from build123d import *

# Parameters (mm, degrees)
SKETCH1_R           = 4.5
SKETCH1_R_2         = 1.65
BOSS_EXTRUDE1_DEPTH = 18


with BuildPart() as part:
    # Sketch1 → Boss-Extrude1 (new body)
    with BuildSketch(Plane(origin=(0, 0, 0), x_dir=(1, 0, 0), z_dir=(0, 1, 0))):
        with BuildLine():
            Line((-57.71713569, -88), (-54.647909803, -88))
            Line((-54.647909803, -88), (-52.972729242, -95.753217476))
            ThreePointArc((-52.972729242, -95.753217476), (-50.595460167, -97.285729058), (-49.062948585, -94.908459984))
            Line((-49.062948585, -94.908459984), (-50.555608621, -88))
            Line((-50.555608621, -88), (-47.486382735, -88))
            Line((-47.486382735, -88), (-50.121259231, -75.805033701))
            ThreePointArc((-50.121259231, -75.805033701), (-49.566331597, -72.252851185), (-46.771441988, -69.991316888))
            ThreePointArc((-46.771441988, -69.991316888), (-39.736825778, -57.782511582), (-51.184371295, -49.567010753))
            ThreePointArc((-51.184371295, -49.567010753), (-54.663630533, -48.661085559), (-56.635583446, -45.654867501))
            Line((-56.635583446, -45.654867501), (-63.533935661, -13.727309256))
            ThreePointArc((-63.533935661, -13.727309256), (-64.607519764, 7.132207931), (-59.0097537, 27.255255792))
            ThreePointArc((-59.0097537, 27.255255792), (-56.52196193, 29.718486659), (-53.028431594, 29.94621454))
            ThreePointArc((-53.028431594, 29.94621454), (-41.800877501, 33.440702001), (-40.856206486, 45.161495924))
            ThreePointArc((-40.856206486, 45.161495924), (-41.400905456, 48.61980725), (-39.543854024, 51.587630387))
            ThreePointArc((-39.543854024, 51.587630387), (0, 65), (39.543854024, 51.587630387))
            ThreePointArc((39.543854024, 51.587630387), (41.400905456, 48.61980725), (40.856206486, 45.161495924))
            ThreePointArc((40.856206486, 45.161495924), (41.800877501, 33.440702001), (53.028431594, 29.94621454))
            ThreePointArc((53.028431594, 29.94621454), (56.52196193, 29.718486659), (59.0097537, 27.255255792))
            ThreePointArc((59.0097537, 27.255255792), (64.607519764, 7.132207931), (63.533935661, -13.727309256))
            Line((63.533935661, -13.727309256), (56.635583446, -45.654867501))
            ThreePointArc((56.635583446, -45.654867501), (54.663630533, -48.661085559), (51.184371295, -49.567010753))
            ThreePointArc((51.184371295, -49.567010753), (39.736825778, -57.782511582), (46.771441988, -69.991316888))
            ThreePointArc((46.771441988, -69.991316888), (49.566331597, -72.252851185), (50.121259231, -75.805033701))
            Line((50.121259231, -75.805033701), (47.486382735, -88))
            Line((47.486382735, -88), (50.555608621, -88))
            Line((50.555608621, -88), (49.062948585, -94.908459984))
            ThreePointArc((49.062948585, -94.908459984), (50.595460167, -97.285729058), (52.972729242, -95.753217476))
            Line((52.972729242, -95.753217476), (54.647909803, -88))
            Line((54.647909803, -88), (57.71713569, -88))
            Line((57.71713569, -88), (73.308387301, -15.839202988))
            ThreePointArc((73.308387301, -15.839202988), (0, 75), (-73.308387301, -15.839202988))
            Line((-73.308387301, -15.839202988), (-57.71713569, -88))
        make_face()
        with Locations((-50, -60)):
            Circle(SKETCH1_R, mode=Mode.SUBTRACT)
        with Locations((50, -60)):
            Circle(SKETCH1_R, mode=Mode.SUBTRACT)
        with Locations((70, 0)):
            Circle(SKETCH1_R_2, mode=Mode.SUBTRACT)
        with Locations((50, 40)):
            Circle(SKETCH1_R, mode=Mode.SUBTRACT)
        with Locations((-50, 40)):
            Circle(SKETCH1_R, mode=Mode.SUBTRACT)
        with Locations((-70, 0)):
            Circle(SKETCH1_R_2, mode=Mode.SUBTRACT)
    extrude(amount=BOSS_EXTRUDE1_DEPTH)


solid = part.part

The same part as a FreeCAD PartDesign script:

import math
import FreeCAD as App
import Part
import Sketcher
from FreeCAD import Vector

doc = App.newDocument("Part")
body = doc.addObject("PartDesign::Body", "Body")

sketch1 = body.newObject("Sketcher::SketchObject", "Sketch")
sketch1.AttachmentSupport = (doc.getObject("XZ_Plane"), [""])
sketch1.MapMode = "FlatFace"
sketch1.addGeometry(Part.LineSegment(Vector(-57.717136, 88, 0), Vector(-54.64791, 88, 0)), False)
sketch1.addGeometry(Part.LineSegment(Vector(-54.64791, 88, 0), Vector(-52.972729, 95.753217, 0)), False)
sketch1.addGeometry(Part.ArcOfCircle(Part.Circle(Vector(-51.017839, 95.330839, 0), Vector(0, 0, 1), 2), math.radians(-12.192062), math.radians(167.807938)), False)
sketch1.addGeometry(Part.LineSegment(Vector(-49.062949, 94.90846, 0), Vector(-50.555609, 88, 0)), False)
sketch1.addGeometry(Part.LineSegment(Vector(-50.555609, 88, 0), Vector(-47.486383, 88, 0)), False)
sketch1.addGeometry(Part.LineSegment(Vector(-47.486383, 88, 0), Vector(-50.121259, 75.805034, 0)), False)
sketch1.addGeometry(Part.ArcOfCircle(Part.Circle(Vector(-45.234033, 74.749087, 0), Vector(0, 0, 1), 5), math.radians(167.807938), math.radians(252.092468)), False)
sketch1.addGeometry(Part.ArcOfCircle(Part.Circle(Vector(-50, 60, 0), Vector(0, 0, 1), 10.5), math.radians(-96.476591), math.radians(72.092468)), False)
sketch1.addGeometry(Part.ArcOfCircle(Part.Circle(Vector(-51.748358, 44.598921, 0), Vector(0, 0, 1), 5), math.radians(83.523409), math.radians(167.807938)), False)
sketch1.addGeometry(Part.LineSegment(Vector(-56.635583, 45.654868, 0), Vector(-63.533936, 13.727309, 0)), False)
sketch1.addGeometry(Part.ArcOfCircle(Part.Circle(Vector(0, 0, 0), Vector(0, 0, 1), 65), math.radians(167.807938), math.radians(204.791135)), False)
sketch1.addGeometry(Part.ArcOfCircle(Part.Circle(Vector(-54.470542, -25.158698, 0), Vector(0, 0, 1), 5), math.radians(-155.208865), math.radians(-73.23649)), False)
sketch1.addGeometry(Part.ArcOfCircle(Part.Circle(Vector(-50, -40, 0), Vector(0, 0, 1), 10.5), math.radians(-29.443894), math.radians(106.76351)), False)
sketch1.addGeometry(Part.ArcOfCircle(Part.Circle(Vector(-36.502019, -47.619351, 0), Vector(0, 0, 1), 5), math.radians(150.556106), math.radians(232.528481)), False)
sketch1.addGeometry(Part.ArcOfCircle(Part.Circle(Vector(0, 0, 0), Vector(0, 0, 1), 65), math.radians(-127.471519), math.radians(-52.528481)), False)
sketch1.addGeometry(Part.ArcOfCircle(Part.Circle(Vector(36.502019, -47.619351, 0), Vector(0, 0, 1), 5), math.radians(-52.528481), math.radians(29.443894)), False)
sketch1.addGeometry(Part.ArcOfCircle(Part.Circle(Vector(50, -40, 0), Vector(0, 0, 1), 10.5), math.radians(73.23649), math.radians(209.443894)), False)
sketch1.addGeometry(Part.ArcOfCircle(Part.Circle(Vector(54.470542, -25.158698, 0), Vector(0, 0, 1), 5), math.radians(-106.76351), math.radians(-24.791135)), False)
sketch1.addGeometry(Part.ArcOfCircle(Part.Circle(Vector(0, 0, 0), Vector(0, 0, 1), 65), math.radians(-24.791135), math.radians(12.192062)), False)
sketch1.addGeometry(Part.LineSegment(Vector(63.533936, 13.727309, 0), Vector(56.635583, 45.654868, 0)), False)
sketch1.addGeometry(Part.ArcOfCircle(Part.Circle(Vector(51.748358, 44.598921, 0), Vector(0, 0, 1), 5), math.radians(12.192062), math.radians(96.476591)), False)
sketch1.addGeometry(Part.ArcOfCircle(Part.Circle(Vector(50, 60, 0), Vector(0, 0, 1), 10.5), math.radians(107.907532), math.radians(276.476591)), False)
sketch1.addGeometry(Part.ArcOfCircle(Part.Circle(Vector(45.234033, 74.749087, 0), Vector(0, 0, 1), 5), math.radians(-72.092468), math.radians(12.192062)), False)
sketch1.addGeometry(Part.LineSegment(Vector(50.121259, 75.805034, 0), Vector(47.486383, 88, 0)), False)
sketch1.addGeometry(Part.LineSegment(Vector(47.486383, 88, 0), Vector(50.555609, 88, 0)), False)
sketch1.addGeometry(Part.LineSegment(Vector(50.555609, 88, 0), Vector(49.062949, 94.90846, 0)), False)
sketch1.addGeometry(Part.ArcOfCircle(Part.Circle(Vector(51.017839, 95.330839, 0), Vector(0, 0, 1), 2), math.radians(12.192062), math.radians(192.192062)), False)
sketch1.addGeometry(Part.LineSegment(Vector(52.972729, 95.753217, 0), Vector(54.64791, 88, 0)), False)
sketch1.addGeometry(Part.LineSegment(Vector(54.64791, 88, 0), Vector(57.717136, 88, 0)), False)
sketch1.addGeometry(Part.LineSegment(Vector(57.717136, 88, 0), Vector(73.308387, 15.839203, 0)), False)
sketch1.addGeometry(Part.ArcOfCircle(Part.Circle(Vector(0, 0, 0), Vector(0, 0, 1), 75), math.radians(167.807938), math.radians(372.192062)), False)
sketch1.addGeometry(Part.LineSegment(Vector(-73.308387, 15.839203, 0), Vector(-57.717136, 88, 0)), False)
sketch1.addGeometry(Part.Circle(Vector(-50, 60, 0), Vector(0, 0, 1), 4.5), False)
sketch1.addGeometry(Part.Circle(Vector(50, 60, 0), Vector(0, 0, 1), 4.5), False)
sketch1.addGeometry(Part.Circle(Vector(-70, 0, 0), Vector(0, 0, 1), 1.65), False)
sketch1.addGeometry(Part.Circle(Vector(-50, -40, 0), Vector(0, 0, 1), 4.5), False)
sketch1.addGeometry(Part.Circle(Vector(70, 0, 0), Vector(0, 0, 1), 1.65), False)
sketch1.addGeometry(Part.Circle(Vector(50, -40, 0), Vector(0, 0, 1), 4.5), False)
sketch1.addConstraint(Sketcher.Constraint("Coincident", 0, 2, 1, 1))
sketch1.addConstraint(Sketcher.Constraint("Coincident", 1, 2, 2, 2))
sketch1.addConstraint(Sketcher.Constraint("Coincident", 2, 1, 3, 1))
sketch1.addConstraint(Sketcher.Constraint("Coincident", 3, 2, 4, 1))
sketch1.addConstraint(Sketcher.Constraint("Coincident", 4, 2, 5, 1))
sketch1.addConstraint(Sketcher.Constraint("Coincident", 5, 2, 6, 1))
sketch1.addConstraint(Sketcher.Constraint("Coincident", 6, 2, 7, 2))
sketch1.addConstraint(Sketcher.Constraint("Coincident", 7, 1, 8, 1))
sketch1.addConstraint(Sketcher.Constraint("Coincident", 8, 2, 9, 1))
sketch1.addConstraint(Sketcher.Constraint("Coincident", 9, 2, 10, 1))
sketch1.addConstraint(Sketcher.Constraint("Coincident", 10, 2, 11, 1))
sketch1.addConstraint(Sketcher.Constraint("Coincident", 11, 2, 12, 2))
sketch1.addConstraint(Sketcher.Constraint("Coincident", 12, 1, 13, 1))
sketch1.addConstraint(Sketcher.Constraint("Coincident", 13, 2, 14, 1))
sketch1.addConstraint(Sketcher.Constraint("Coincident", 14, 2, 15, 1))
sketch1.addConstraint(Sketcher.Constraint("Coincident", 15, 2, 16, 2))
sketch1.addConstraint(Sketcher.Constraint("Coincident", 16, 1, 17, 1))
sketch1.addConstraint(Sketcher.Constraint("Coincident", 17, 2, 18, 1))
sketch1.addConstraint(Sketcher.Constraint("Coincident", 18, 2, 19, 1))
sketch1.addConstraint(Sketcher.Constraint("Coincident", 19, 2, 20, 1))
sketch1.addConstraint(Sketcher.Constraint("Coincident", 20, 2, 21, 2))
sketch1.addConstraint(Sketcher.Constraint("Coincident", 21, 1, 22, 1))
sketch1.addConstraint(Sketcher.Constraint("Coincident", 22, 2, 23, 1))
sketch1.addConstraint(Sketcher.Constraint("Coincident", 23, 2, 24, 1))
sketch1.addConstraint(Sketcher.Constraint("Coincident", 24, 2, 25, 1))
sketch1.addConstraint(Sketcher.Constraint("Coincident", 25, 2, 26, 2))
sketch1.addConstraint(Sketcher.Constraint("Coincident", 26, 1, 27, 1))
sketch1.addConstraint(Sketcher.Constraint("Coincident", 27, 2, 28, 1))
sketch1.addConstraint(Sketcher.Constraint("Coincident", 28, 2, 29, 1))
sketch1.addConstraint(Sketcher.Constraint("Coincident", 29, 2, 30, 2))
sketch1.addConstraint(Sketcher.Constraint("Coincident", 30, 1, 31, 1))
sketch1.addConstraint(Sketcher.Constraint("Coincident", 31, 2, 0, 1))
sketch1.addConstraint(Sketcher.Constraint("Horizontal", 0))
sketch1.addConstraint(Sketcher.Constraint("Horizontal", 4))
sketch1.addConstraint(Sketcher.Constraint("Horizontal", 24))
sketch1.addConstraint(Sketcher.Constraint("Horizontal", 28))
sketch1.addConstraint(Sketcher.Constraint("Coincident", 10, 3, -1, 1))
sketch1.addConstraint(Sketcher.Constraint("Coincident", 14, 3, -1, 1))
sketch1.addConstraint(Sketcher.Constraint("Coincident", 18, 3, -1, 1))
sketch1.addConstraint(Sketcher.Constraint("Coincident", 30, 3, -1, 1))
sketch1.addConstraint(Sketcher.Constraint("Coincident", 32, 3, 7, 3))
sketch1.addConstraint(Sketcher.Constraint("Coincident", 33, 3, 21, 3))
sketch1.addConstraint(Sketcher.Constraint("Coincident", 35, 3, 12, 3))
sketch1.addConstraint(Sketcher.Constraint("Coincident", 37, 3, 16, 3))
sketch1.addConstraint(Sketcher.Constraint("PointOnObject", 34, 3, -1))
sketch1.addConstraint(Sketcher.Constraint("PointOnObject", 36, 3, -1))
sketch1.addConstraint(Sketcher.Constraint("Diameter", 32, 9.0))
sketch1.addConstraint(Sketcher.Constraint("Diameter", 33, 9.0))
sketch1.addConstraint(Sketcher.Constraint("Diameter", 35, 9.0))
sketch1.addConstraint(Sketcher.Constraint("Diameter", 37, 9.0))
sketch1.addConstraint(Sketcher.Constraint("Radius", 2, 2.0))
sketch1.addConstraint(Sketcher.Constraint("Radius", 6, 5.0))
sketch1.addConstraint(Sketcher.Constraint("Radius", 8, 5.0))
sketch1.addConstraint(Sketcher.Constraint("Radius", 10, 65.0))
sketch1.addConstraint(Sketcher.Constraint("Radius", 11, 5.0))
sketch1.addConstraint(Sketcher.Constraint("Radius", 13, 5.0))
sketch1.addConstraint(Sketcher.Constraint("Radius", 14, 65.0))
sketch1.addConstraint(Sketcher.Constraint("Radius", 15, 5.0))
sketch1.addConstraint(Sketcher.Constraint("Radius", 17, 5.0))
sketch1.addConstraint(Sketcher.Constraint("Radius", 18, 65.0))
sketch1.addConstraint(Sketcher.Constraint("Radius", 20, 5.0))
sketch1.addConstraint(Sketcher.Constraint("Radius", 22, 5.0))
sketch1.addConstraint(Sketcher.Constraint("Radius", 26, 2.0))
sketch1.addConstraint(Sketcher.Constraint("Radius", 30, 75.0))
sketch1.addConstraint(Sketcher.Constraint("Diameter", 34, 3.3))
sketch1.addConstraint(Sketcher.Constraint("Diameter", 36, 3.3))
sketch1.addConstraint(Sketcher.Constraint("Radius", 7, 10.5))
sketch1.addConstraint(Sketcher.Constraint("Radius", 12, 10.5))
sketch1.addConstraint(Sketcher.Constraint("Radius", 16, 10.5))
sketch1.addConstraint(Sketcher.Constraint("Radius", 21, 10.5))
sketch1.addConstraint(Sketcher.Constraint("DistanceX", 7, 3, -1, 1, 50.0))
sketch1.addConstraint(Sketcher.Constraint("DistanceY", -1, 1, 7, 3, 60.0))
sketch1.addConstraint(Sketcher.Constraint("DistanceX", 12, 3, -1, 1, 50.0))
sketch1.addConstraint(Sketcher.Constraint("DistanceY", 12, 3, -1, 1, 40.0))
sketch1.addConstraint(Sketcher.Constraint("DistanceX", -1, 1, 16, 3, 50.0))
sketch1.addConstraint(Sketcher.Constraint("DistanceY", 16, 3, -1, 1, 40.0))
sketch1.addConstraint(Sketcher.Constraint("DistanceX", -1, 1, 21, 3, 50.0))
sketch1.addConstraint(Sketcher.Constraint("DistanceY", -1, 1, 21, 3, 60.0))
sketch1.addConstraint(Sketcher.Constraint("DistanceX", 34, 3, -1, 1, 70.0))
sketch1.addConstraint(Sketcher.Constraint("DistanceX", -1, 1, 36, 3, 70.0))
sketch1.addConstraint(Sketcher.Constraint("DistanceY", -1, 1, 0, 2, 88.0))
sketch1.addConstraint(Sketcher.Constraint("DistanceY", -1, 1, 3, 2, 88.0))
sketch1.addConstraint(Sketcher.Constraint("DistanceY", -1, 1, 23, 2, 88.0))
sketch1.addConstraint(Sketcher.Constraint("DistanceY", -1, 1, 27, 2, 88.0))
sketch1.addConstraint(Sketcher.Constraint("DistanceX", 0, 2, 3, 2, 4.092301))
sketch1.addConstraint(Sketcher.Constraint("DistanceY", 9, 2, 7, 1, 35.839701))
sketch1.addConstraint(Sketcher.Constraint("DistanceY", 12, 1, 11, 3, 20.002798))
sketch1.addConstraint(Sketcher.Constraint("DistanceY", 15, 2, 17, 3, 20.002798))
sketch1.addConstraint(Sketcher.Constraint("DistanceX", 24, 2, 27, 2, 4.092301))
sketch1.addConstraint(Sketcher.Constraint("Distance", 5, 12.476369))
sketch1.addConstraint(Sketcher.Constraint("Distance", 23, 12.476369))
sketch1.addConstraint(Sketcher.Constraint("Distance", 29, 73.825929))
sketch1.addConstraint(Sketcher.Constraint("Distance", 31, 73.825929))
sketch1.addConstraint(Sketcher.Constraint("DistanceX", 0, 1, 0, 2, 3.069226))
sketch1.addConstraint(Sketcher.Constraint("DistanceX", 4, 1, 4, 2, 3.069226))
sketch1.addConstraint(Sketcher.Constraint("DistanceX", 24, 1, 24, 2, 3.069226))
sketch1.addConstraint(Sketcher.Constraint("DistanceX", 28, 1, 28, 2, 3.069226))
sketch1.addConstraint(Sketcher.Constraint("DistanceX", 2, 3, -1, 1, 51.017839))
sketch1.addConstraint(Sketcher.Constraint("DistanceY", -1, 1, 2, 3, 95.330839))
sketch1.addConstraint(Sketcher.Constraint("DistanceY", -1, 1, 8, 3, 44.598921))
sketch1.addConstraint(Sketcher.Constraint("DistanceY", -1, 1, 20, 3, 44.598921))
sketch1.addConstraint(Sketcher.Constraint("DistanceX", -1, 1, 26, 3, 51.017839))
sketch1.addConstraint(Sketcher.Constraint("DistanceY", -1, 1, 26, 3, 95.330839))
sketch1.addConstraint(Sketcher.Constraint("DistanceX", 0, 2, -1, 1, 54.64791))
sketch1.addConstraint(Sketcher.Constraint("DistanceX", 1, 2, -1, 1, 52.972729))
sketch1.addConstraint(Sketcher.Constraint("DistanceX", 2, 1, -1, 1, 49.062949))
sketch1.addConstraint(Sketcher.Constraint("DistanceX", 5, 2, -1, 1, 50.121259))
sketch1.addConstraint(Sketcher.Constraint("DistanceX", 6, 2, -1, 1, 46.771442))
sketch1.addConstraint(Sketcher.Constraint("DistanceX", 7, 1, -1, 1, 51.184371))
sketch1.addConstraint(Sketcher.Constraint("DistanceX", 11, 2, -1, 1, 53.028432))
sketch1.addConstraint(Sketcher.Constraint("DistanceY", 13, 2, -1, 1, 51.58763))
sketch1.addConstraint(Sketcher.Constraint("DistanceY", 14, 2, -1, 1, 51.58763))
sketch1.addConstraint(Sketcher.Constraint("DistanceX", -1, 1, 16, 1, 53.028432))
sketch1.addConstraint(Sketcher.Constraint("DistanceY", -1, 1, 18, 2, 13.727309))
sketch1.addConstraint(Sketcher.Constraint("DistanceX", -1, 1, 20, 2, 51.184371))
sketch1.addConstraint(Sketcher.Constraint("DistanceX", -1, 1, 21, 1, 46.771442))
sketch1.addConstraint(Sketcher.Constraint("DistanceX", -1, 1, 22, 2, 50.121259))
sketch1.addConstraint(Sketcher.Constraint("DistanceX", -1, 1, 24, 2, 50.555609))
sketch1.addConstraint(Sketcher.Constraint("DistanceX", -1, 1, 25, 2, 49.062949))
sketch1.addConstraint(Sketcher.Constraint("DistanceX", -1, 1, 26, 1, 52.972729))
sketch1.addConstraint(Sketcher.Constraint("DistanceX", 8, 2, 6, 2, 9.864141))
sketch1.addConstraint(Sketcher.Constraint("DistanceX", 10, 2, 11, 3, 4.539212))
sketch1.addConstraint(Sketcher.Constraint("DistanceX", 17, 3, 17, 2, 4.539212))
sketch1.addConstraint(Sketcher.Constraint("DistanceX", 22, 3, 19, 2, 11.40155))
pad1 = body.newObject("PartDesign::Pad", "Pad")
pad1.Profile = sketch1
pad1.Length = 18
pad1.Reversed = True

doc.recompute()
